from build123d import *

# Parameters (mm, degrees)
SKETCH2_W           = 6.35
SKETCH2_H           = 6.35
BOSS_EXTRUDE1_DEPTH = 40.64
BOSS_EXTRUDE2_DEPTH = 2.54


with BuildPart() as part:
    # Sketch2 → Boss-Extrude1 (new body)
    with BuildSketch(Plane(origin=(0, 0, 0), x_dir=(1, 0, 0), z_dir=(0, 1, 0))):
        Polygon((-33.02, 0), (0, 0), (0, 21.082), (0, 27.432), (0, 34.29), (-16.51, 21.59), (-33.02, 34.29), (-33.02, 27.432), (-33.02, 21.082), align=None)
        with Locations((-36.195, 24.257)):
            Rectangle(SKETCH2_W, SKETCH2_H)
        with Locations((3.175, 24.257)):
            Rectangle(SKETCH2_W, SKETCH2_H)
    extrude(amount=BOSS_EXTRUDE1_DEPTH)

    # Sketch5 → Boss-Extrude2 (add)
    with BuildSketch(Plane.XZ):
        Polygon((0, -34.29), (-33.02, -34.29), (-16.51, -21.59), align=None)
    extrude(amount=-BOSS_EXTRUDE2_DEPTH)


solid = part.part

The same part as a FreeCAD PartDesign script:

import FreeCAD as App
import Part
import Sketcher

V = App.Vector
Q = App.Units.Quantity

doc = App.newDocument("Part")
body = doc.addObject("PartDesign::Body", "Body")

# Sketch on XZ plane
sketch1 = body.newObject("Sketcher::SketchObject", "Sketch")
sketch1.AttachmentSupport = (doc.getObject("XZ_Plane"), [""])
sketch1.MapMode = "FlatFace"
sketch1.addGeometry(Part.LineSegment(V(-33, 0, 0), V(0, 0, 0)), False)
sketch1.addGeometry(Part.LineSegment(V(0, 0, 0), V(0, -21, 0)), False)
sketch1.addGeometry(Part.LineSegment(V(0, -21, 0), V(6, -21, 0)), False)
sketch1.addGeometry(Part.LineSegment(V(6, -21, 0), V(6, -27, 0)), False)
sketch1.addGeometry(Part.LineSegment(V(6, -27, 0), V(0, -27, 0)), False)
sketch1.addGeometry(Part.LineSegment(V(0, -27, 0), V(0, -34, 0)), False)
sketch1.addGeometry(Part.LineSegment(V(0, -34, 0), V(-17, -22, 0)), False)
sketch1.addGeometry(Part.LineSegment(V(-17, -22, 0), V(-33, -34, 0)), False)
sketch1.addGeometry(Part.LineSegment(V(-33, -34, 0), V(-33, -27, 0)), False)
sketch1.addGeometry(Part.LineSegment(V(-33, -27, 0), V(-39, -27, 0)), False)
sketch1.addGeometry(Part.LineSegment(V(-39, -27, 0), V(-39, -21, 0)), False)
sketch1.addGeometry(Part.LineSegment(V(-39, -21, 0), V(-33, -21, 0)), False)
sketch1.addGeometry(Part.LineSegment(V(-33, -21, 0), V(-33, 0, 0)), False)
sketch1.addConstraint(Sketcher.Constraint("Coincident", 0, 2, 1, 1))
sketch1.addConstraint(Sketcher.Constraint("Coincident", 1, 2, 2, 1))
sketch1.addConstraint(Sketcher.Constraint("Coincident", 2, 2, 3, 1))
sketch1.addConstraint(Sketcher.Constraint("Coincident", 3, 2, 4, 1))
sketch1.addConstraint(Sketcher.Constraint("Coincident", 4, 2, 5, 1))
sketch1.addConstraint(Sketcher.Constraint("Coincident", 5, 2, 6, 1))
sketch1.addConstraint(Sketcher.Constraint("Coincident", 6, 2, 7, 1))
sketch1.addConstraint(Sketcher.Constraint("Coincident", 7, 2, 8, 1))
sketch1.addConstraint(Sketcher.Constraint("Coincident", 8, 2, 9, 1))
sketch1.addConstraint(Sketcher.Constraint("Coincident", 9, 2, 10, 1))
sketch1.addConstraint(Sketcher.Constraint("Coincident", 10, 2, 11, 1))
sketch1.addConstraint(Sketcher.Constraint("Coincident", 11, 2, 12, 1))
sketch1.addConstraint(Sketcher.Constraint("Coincident", 12, 2, 0, 1))
sketch1.addConstraint(Sketcher.Constraint("Horizontal", 0))
sketch1.addConstraint(Sketcher.Constraint("Vertical", 1))
sketch1.addConstraint(Sketcher.Constraint("Horizontal", 2))
sketch1.addConstraint(Sketcher.Constraint("Vertical", 3))
sketch1.addConstraint(Sketcher.Constraint("Horizontal", 4))
sketch1.addConstraint(Sketcher.Constraint("Vertical", 5))
sketch1.addConstraint(Sketcher.Constraint("Vertical", 8))
sketch1.addConstraint(Sketcher.Constraint("Horizontal", 9))
sketch1.addConstraint(Sketcher.Constraint("Vertical", 10))
sketch1.addConstraint(Sketcher.Constraint("Horizontal", 11))
sketch1.addConstraint(Sketcher.Constraint("Vertical", 12))
sketch1.addConstraint(Sketcher.Constraint("Coincident", 0, 2, -1, 1))
sketch1.addConstraint(Sketcher.Constraint("PointOnObject", 4, 2, -2))
sketch1.addConstraint(Sketcher.Constraint("Horizontal", 5, 2, 7, 2))
sketch1.addConstraint(Sketcher.Constraint("Horizontal", 4, 2, 8, 2))
sketch1.addConstraint(Sketcher.Constraint("Horizontal", 2, 2, 10, 2))
sketch1.addConstraint(Sketcher.Constraint("Vertical", 8, 2, 11, 2))
sketch1.addConstraint(Sketcher.Constraint("Equal", 4, 9))
sketch1.addConstraint(Sketcher.Constraint("Equal", 11, 3))
sketch1.addConstraint(Sketcher.Constraint("Equal", 6, 7))
sketch1.addConstraint(Sketcher.Constraint("DistanceX", 0, 1, 0, 2, Q("1.3 in")))
sketch1.addConstraint(Sketcher.Constraint("DistanceX", 2, 1, 2, 2, Q("0.25 in")))
sketch1.addConstraint(Sketcher.Constraint("DistanceY", 1, 2, 1, 1, Q("0.83 in")))
sketch1.addConstraint(Sketcher.Constraint("DistanceY", 5, 2, 5, 1, Q("0.27 in")))
sketch1.addConstraint(Sketcher.Constraint("DistanceY", 5, 2, 6, 2, Q("0.5 in")))
pad1 = body.newObject("PartDesign::Pad", "Pad")
pad1.Profile = sketch1
pad1.Length = Q("1.6 in")
pad1.Reversed = True

# Sketch on XZ plane
sketch2 = body.newObject("Sketcher::SketchObject", "Sketch001")
sketch2.AttachmentSupport = (doc.getObject("XZ_Plane"), [""])
sketch2.MapMode = "FlatFace"
sketch2.addGeometry(Part.LineSegment(V(-33, -34, 0), V(0, -34, 0)), False)
sketch2.addGeometry(Part.LineSegment(V(0, -34, 0), V(-17, -22, 0)), False)
sketch2.addGeometry(Part.LineSegment(V(-17, -22, 0), V(-33, -34, 0)), False)
sketch2.addConstraint(Sketcher.Constraint("Coincident", 0, 2, 1, 1))
sketch2.addConstraint(Sketcher.Constraint("Coincident", 1, 2, 2, 1))
sketch2.addConstraint(Sketcher.Constraint("Coincident", 2, 2, 0, 1))
sketch2.addConstraint(Sketcher.Constraint("Horizontal", 0))
sketch2.addConstraint(Sketcher.Constraint("PointOnObject", 0, 2, -2))
sketch2.addConstraint(Sketcher.Constraint("Equal", 1, 2))
sketch2.addConstraint(Sketcher.Constraint("DistanceX", 0, 1, 0, 2, Q("1.3 in")))
sketch2.addConstraint(Sketcher.Constraint("DistanceY", 0, 2, 1, 2, Q("0.5 in")))
sketch2.addConstraint(Sketcher.Constraint("DistanceY", 0, 2, -1, 1, Q("1.35 in")))
pad2 = body.newObject("PartDesign::Pad", "Pad001")
pad2.Profile = sketch2
pad2.Length = Q("0.1 in")
pad2.Reversed = True

doc.recompute()
